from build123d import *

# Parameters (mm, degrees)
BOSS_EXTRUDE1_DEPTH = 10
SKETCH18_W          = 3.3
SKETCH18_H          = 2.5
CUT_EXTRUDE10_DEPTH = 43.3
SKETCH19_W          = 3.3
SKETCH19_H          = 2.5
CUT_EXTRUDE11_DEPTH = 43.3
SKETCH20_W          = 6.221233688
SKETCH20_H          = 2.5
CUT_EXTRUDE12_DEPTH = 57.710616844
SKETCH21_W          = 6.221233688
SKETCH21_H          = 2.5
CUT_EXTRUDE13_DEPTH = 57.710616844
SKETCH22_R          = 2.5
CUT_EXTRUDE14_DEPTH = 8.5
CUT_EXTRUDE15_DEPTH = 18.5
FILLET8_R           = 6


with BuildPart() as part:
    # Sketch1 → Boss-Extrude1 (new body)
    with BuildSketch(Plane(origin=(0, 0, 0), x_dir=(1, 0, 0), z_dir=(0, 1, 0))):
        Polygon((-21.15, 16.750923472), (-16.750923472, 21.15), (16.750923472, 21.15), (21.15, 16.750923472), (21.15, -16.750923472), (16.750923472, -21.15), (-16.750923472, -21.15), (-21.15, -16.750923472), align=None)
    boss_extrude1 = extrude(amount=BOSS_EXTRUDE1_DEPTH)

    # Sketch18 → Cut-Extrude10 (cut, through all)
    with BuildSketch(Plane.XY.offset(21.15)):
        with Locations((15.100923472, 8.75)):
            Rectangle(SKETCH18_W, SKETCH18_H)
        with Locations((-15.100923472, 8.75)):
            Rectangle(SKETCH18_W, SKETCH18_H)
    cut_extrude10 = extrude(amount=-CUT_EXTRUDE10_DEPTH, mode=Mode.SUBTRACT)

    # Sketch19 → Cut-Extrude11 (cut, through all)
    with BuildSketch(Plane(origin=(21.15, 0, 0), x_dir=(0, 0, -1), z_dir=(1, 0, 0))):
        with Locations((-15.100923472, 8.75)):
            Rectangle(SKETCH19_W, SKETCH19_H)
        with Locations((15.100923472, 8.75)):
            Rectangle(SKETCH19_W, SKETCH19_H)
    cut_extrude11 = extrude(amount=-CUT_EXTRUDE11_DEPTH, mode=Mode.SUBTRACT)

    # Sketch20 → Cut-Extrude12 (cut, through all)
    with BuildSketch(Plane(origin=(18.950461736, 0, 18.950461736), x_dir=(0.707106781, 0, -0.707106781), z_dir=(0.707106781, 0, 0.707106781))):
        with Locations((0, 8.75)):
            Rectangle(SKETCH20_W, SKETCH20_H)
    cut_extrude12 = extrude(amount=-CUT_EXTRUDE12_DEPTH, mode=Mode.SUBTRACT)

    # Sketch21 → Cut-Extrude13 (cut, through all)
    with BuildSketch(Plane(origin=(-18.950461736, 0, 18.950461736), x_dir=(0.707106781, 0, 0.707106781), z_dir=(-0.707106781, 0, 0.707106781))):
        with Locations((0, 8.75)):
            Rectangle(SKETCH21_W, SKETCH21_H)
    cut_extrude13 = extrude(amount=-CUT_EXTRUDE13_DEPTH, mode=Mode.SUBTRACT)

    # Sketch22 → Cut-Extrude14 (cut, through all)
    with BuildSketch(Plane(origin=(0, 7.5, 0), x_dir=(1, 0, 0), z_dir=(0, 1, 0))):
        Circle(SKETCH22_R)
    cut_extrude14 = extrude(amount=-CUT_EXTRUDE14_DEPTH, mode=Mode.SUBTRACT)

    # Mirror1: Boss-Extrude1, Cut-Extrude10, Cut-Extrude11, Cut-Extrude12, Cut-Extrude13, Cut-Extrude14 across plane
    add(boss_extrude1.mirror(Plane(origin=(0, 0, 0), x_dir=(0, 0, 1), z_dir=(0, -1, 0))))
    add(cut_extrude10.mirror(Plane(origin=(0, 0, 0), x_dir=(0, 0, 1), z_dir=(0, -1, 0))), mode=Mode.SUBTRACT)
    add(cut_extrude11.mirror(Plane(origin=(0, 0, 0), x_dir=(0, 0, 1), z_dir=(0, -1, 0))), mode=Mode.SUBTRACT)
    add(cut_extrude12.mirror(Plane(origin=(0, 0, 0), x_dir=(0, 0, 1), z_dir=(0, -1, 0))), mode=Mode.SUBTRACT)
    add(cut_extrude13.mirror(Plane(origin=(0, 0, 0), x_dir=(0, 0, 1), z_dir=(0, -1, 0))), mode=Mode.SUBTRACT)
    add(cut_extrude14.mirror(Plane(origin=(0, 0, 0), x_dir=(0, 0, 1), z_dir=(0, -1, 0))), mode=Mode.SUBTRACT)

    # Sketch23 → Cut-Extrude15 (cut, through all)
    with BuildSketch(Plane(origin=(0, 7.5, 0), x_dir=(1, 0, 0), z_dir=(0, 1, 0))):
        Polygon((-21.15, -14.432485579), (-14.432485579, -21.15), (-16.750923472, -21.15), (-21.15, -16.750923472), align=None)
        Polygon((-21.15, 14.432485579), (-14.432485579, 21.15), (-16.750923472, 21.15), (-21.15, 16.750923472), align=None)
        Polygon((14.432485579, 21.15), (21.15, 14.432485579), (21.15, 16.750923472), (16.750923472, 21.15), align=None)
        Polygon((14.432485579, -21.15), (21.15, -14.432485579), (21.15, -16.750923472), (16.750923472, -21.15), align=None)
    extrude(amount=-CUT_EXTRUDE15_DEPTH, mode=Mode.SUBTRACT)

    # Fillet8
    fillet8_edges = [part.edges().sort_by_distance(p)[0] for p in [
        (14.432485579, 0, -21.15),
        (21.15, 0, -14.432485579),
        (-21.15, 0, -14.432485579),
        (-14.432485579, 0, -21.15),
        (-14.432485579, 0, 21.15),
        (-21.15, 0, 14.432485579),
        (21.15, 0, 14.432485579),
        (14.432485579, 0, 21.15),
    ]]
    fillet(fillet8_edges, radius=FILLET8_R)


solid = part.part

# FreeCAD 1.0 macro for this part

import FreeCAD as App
import Part
import Sketcher
Q = App.Units.Quantity


def edges_at(feature, points):
    """Names of the edges that pass closest to the given points."""
    edges = feature.Shape.Edges
    near = lambda p: min(range(len(edges)), key=lambda i: edges[i].distToShape(Part.Vertex(*p))[0])
    return sorted({f"Edge{near(p) + 1}" for p in points})

doc = App.newDocument("Part")
body = doc.addObject("PartDesign::Body", "Body")

# Sketch on XZ plane
sketch1 = doc.addObject("Sketcher::SketchObject", "Sketch")
body.addObject(sketch1)
sketch1.AttachmentSupport = (doc.XZ_Plane, [""])
sketch1.MapMode = "FlatFace"
sketch1.addGeometry(Part.LineSegment(App.Vector(-16.750923, -21.15, 0), App.Vector(-21.15, -16.750923, 0)), False)
sketch1.addGeometry(Part.LineSegment(App.Vector(-21.15, -16.750923, 0), App.Vector(-21.15, 16.750923, 0)), False)
sketch1.addGeometry(Part.LineSegment(App.Vector(-21.15, 16.750923, 0), App.Vector(-16.750923, 21.15, 0)), False)
sketch1.addGeometry(Part.LineSegment(App.Vector(-16.750923, 21.15, 0), App.Vector(16.750923, 21.15, 0)), False)
sketch1.addGeometry(Part.LineSegment(App.Vector(16.750923, 21.15, 0), App.Vector(21.15, 16.750923, 0)), False)
sketch1.addGeometry(Part.LineSegment(App.Vector(21.15, 16.750923, 0), App.Vector(21.15, -16.750923, 0)), False)
sketch1.addGeometry(Part.LineSegment(App.Vector(21.15, -16.750923, 0), App.Vector(16.750923, -21.15, 0)), False)
sketch1.addGeometry(Part.LineSegment(App.Vector(16.750923, -21.15, 0), App.Vector(-16.750923, -21.15, 0)), False)
sketch1.addConstraint(Sketcher.Constraint("Coincident", 0, 2, 1, 1))
sketch1.addConstraint(Sketcher.Constraint("Coincident", 1, 2, 2, 1))
sketch1.addConstraint(Sketcher.Constraint("Coincident", 2, 2, 3, 1))
sketch1.addConstraint(Sketcher.Constraint("Coincident", 3, 2, 4, 1))
sketch1.addConstraint(Sketcher.Constraint("Coincident", 4, 2, 5, 1))
sketch1.addConstraint(Sketcher.Constraint("Coincident", 5, 2, 6, 1))
sketch1.addConstraint(Sketcher.Constraint("Coincident", 6, 2, 7, 1))
sketch1.addConstraint(Sketcher.Constraint("Coincident", 7, 2, 0, 1))
sketch1.addConstraint(Sketcher.Constraint("Vertical", 1))
sketch1.addConstraint(Sketcher.Constraint("Horizontal", 3))
sketch1.addConstraint(Sketcher.Constraint("Vertical", 5))
sketch1.addConstraint(Sketcher.Constraint("Horizontal", 7))
sketch1.addConstraint(Sketcher.Constraint("Symmetric", 0, 2, 4, 2, -1, 1))
sketch1.addConstraint(Sketcher.Constraint("Symmetric", 2, 2, 6, 2, -1, 1))
sketch1.addConstraint(Sketcher.Constraint("Perpendicular", 0, 2))
sketch1.addConstraint(Sketcher.Constraint("Perpendicular", 2, 4))
sketch1.addConstraint(Sketcher.Constraint("Perpendicular", 4, 6))
sketch1.addConstraint(Sketcher.Constraint("Horizontal", 1, 2, 4, 2))
sketch1.addConstraint(Sketcher.Constraint("Vertical", 3, 2, 6, 2))
sketch1.addConstraint(Sketcher.Constraint("Equal", 7, 1))
sketch1.addConstraint(Sketcher.Constraint("DistanceX", 1, 2, 4, 2, Q("42.3 mm")))
sketch1.addConstraint(Sketcher.Constraint("DistanceX", 3, 1, 3, 2, Q("33.501847 mm")))
pad1 = doc.addObject("PartDesign::Pad", "Pad")
body.addObject(pad1)
pad1.Profile = sketch1
pad1.Length = 10
pad1.Reversed = True

# Sketch on XY plane
sketch2 = doc.addObject("Sketcher::SketchObject", "Sketch001")
body.addObject(sketch2)
sketch2.AttachmentSupport = (doc.XY_Plane, [""])
sketch2.MapMode = "FlatFace"
sketch2.AttachmentOffset = App.Placement(App.Vector(0, 0, 21.15), App.Rotation())
sketch2.addGeometry(Part.LineSegment(App.Vector(13.450923, 10, 0), App.Vector(13.450923, 7.5, 0)), False)
sketch2.addGeometry(Part.LineSegment(App.Vector(13.450923, 7.5, 0), App.Vector(16.750923, 7.5, 0)), False)
sketch2.addGeometry(Part.LineSegment(App.Vector(16.750923, 7.5, 0), App.Vector(16.750923, 10, 0)), False)
sketch2.addGeometry(Part.LineSegment(App.Vector(16.750923, 10, 0), App.Vector(13.450923, 10, 0)), False)
sketch2.addGeometry(Part.LineSegment(App.Vector(-16.750923, 10, 0), App.Vector(-16.750923, 7.5, 0)), False)
sketch2.addGeometry(Part.LineSegment(App.Vector(-16.750923, 7.5, 0), App.Vector(-13.450923, 7.5, 0)), False)
sketch2.addGeometry(Part.LineSegment(App.Vector(-13.450923, 7.5, 0), App.Vector(-13.450923, 10, 0)), False)
sketch2.addGeometry(Part.LineSegment(App.Vector(-13.450923, 10, 0), App.Vector(-16.750923, 10, 0)), False)
sketch2.addConstraint(Sketcher.Constraint("Coincident", 0, 2, 1, 1))
sketch2.addConstraint(Sketcher.Constraint("Coincident", 1, 2, 2, 1))
sketch2.addConstraint(Sketcher.Constraint("Coincident", 2, 2, 3, 1))
sketch2.addConstraint(Sketcher.Constraint("Coincident", 3, 2, 0, 1))
sketch2.addConstraint(Sketcher.Constraint("Coincident", 4, 2, 5, 1))
sketch2.addConstraint(Sketcher.Constraint("Coincident", 5, 2, 6, 1))
sketch2.addConstraint(Sketcher.Constraint("Coincident", 6, 2, 7, 1))
sketch2.addConstraint(Sketcher.Constraint("Coincident", 7, 2, 4, 1))
sketch2.addConstraint(Sketcher.Constraint("Vertical", 0))
sketch2.addConstraint(Sketcher.Constraint("Horizontal", 1))
sketch2.addConstraint(Sketcher.Constraint("Vertical", 2))
sketch2.addConstraint(Sketcher.Constraint("Horizontal", 3))
sketch2.addConstraint(Sketcher.Constraint("Vertical", 4))
sketch2.addConstraint(Sketcher.Constraint("Horizontal", 5))
sketch2.addConstraint(Sketcher.Constraint("Vertical", 6))
sketch2.addConstraint(Sketcher.Constraint("Horizontal", 7))
sketch2.addConstraint(Sketcher.Constraint("Symmetric", 1, 2, 4, 2, -2))
sketch2.addConstraint(Sketcher.Constraint("Symmetric", 3, 2, 6, 2, -2))
sketch2.addConstraint(Sketcher.Constraint("DistanceX", 1, 1, 1, 2, Q("3.3 mm")))
sketch2.addConstraint(Sketcher.Constraint("DistanceY", 0, 2, 0, 1, Q("2.5 mm")))
sketch2.addConstraint(Sketcher.Constraint("DistanceY", -1, 1, 2, 2, Q("10 mm")))
sketch2.addConstraint(Sketcher.Constraint("DistanceX", -1, 1, 0, 2, Q("13.450923 mm")))
pocket1 = doc.addObject("PartDesign::Pocket", "Pocket")
body.addObject(pocket1)
pocket1.Profile = sketch2
pocket1.Type = "ThroughAll"

# Sketch on YZ plane
sketch3 = doc.addObject("Sketcher::SketchObject", "Sketch002")
body.addObject(sketch3)
sketch3.AttachmentSupport = (doc.YZ_Plane, [""])
sketch3.MapMode = "FlatFace"
sketch3.AttachmentOffset = App.Placement(App.Vector(0, 0, 21.15), App.Rotation())
sketch3.addGeometry(Part.LineSegment(App.Vector(10, 16.750923, 0), App.Vector(7.5, 16.750923, 0)), False)
sketch3.addGeometry(Part.LineSegment(App.Vector(7.5, 16.750923, 0), App.Vector(7.5, 13.450923, 0)), False)
sketch3.addGeometry(Part.LineSegment(App.Vector(7.5, 13.450923, 0), App.Vector(10, 13.450923, 0)), False)
sketch3.addGeometry(Part.LineSegment(App.Vector(10, 13.450923, 0), App.Vector(10, 16.750923, 0)), False)
sketch3.addGeometry(Part.LineSegment(App.Vector(10, -13.450923, 0), App.Vector(7.5, -13.450923, 0)), False)
sketch3.addGeometry(Part.LineSegment(App.Vector(7.5, -13.450923, 0), App.Vector(7.5, -16.750923, 0)), False)
sketch3.addGeometry(Part.LineSegment(App.Vector(7.5, -16.750923, 0), App.Vector(10, -16.750923, 0)), False)
sketch3.addGeometry(Part.LineSegment(App.Vector(10, -16.750923, 0), App.Vector(10, -13.450923, 0)), False)
sketch3.addConstraint(Sketcher.Constraint("Coincident", 0, 2, 1, 1))
sketch3.addConstraint(Sketcher.Constraint("Coincident", 1, 2, 2, 1))
sketch3.addConstraint(Sketcher.Constraint("Coincident", 2, 2, 3, 1))
sketch3.addConstraint(Sketcher.Constraint("Coincident", 3, 2, 0, 1))
sketch3.addConstraint(Sketcher.Constraint("Coincident", 4, 2, 5, 1))
sketch3.addConstraint(Sketcher.Constraint("Coincident", 5, 2, 6, 1))
sketch3.addConstraint(Sketcher.Constraint("Coincident", 6, 2, 7, 1))
sketch3.addConstraint(Sketcher.Constraint("Coincident", 7, 2, 4, 1))
sketch3.addConstraint(Sketcher.Constraint("Horizontal", 0))
sketch3.addConstraint(Sketcher.Constraint("Vertical", 1))
sketch3.addConstraint(Sketcher.Constraint("Horizontal", 2))
sketch3.addConstraint(Sketcher.Constraint("Vertical", 3))
sketch3.addConstraint(Sketcher.Constraint("Horizontal", 4))
sketch3.addConstraint(Sketcher.Constraint("Vertical", 5))
sketch3.addConstraint(Sketcher.Constraint("Horizontal", 6))
sketch3.addConstraint(Sketcher.Constraint("Vertical", 7))
sketch3.addConstraint(Sketcher.Constraint("Symmetric", 1, 2, 4, 2, -1))
sketch3.addConstraint(Sketcher.Constraint("Symmetric", 3, 2, 6, 2, -1))
sketch3.addConstraint(Sketcher.Constraint("DistanceX", 0, 2, 0, 1, Q("2.5 mm")))
sketch3.addConstraint(Sketcher.Constraint("DistanceY", 1, 2, 1, 1, Q("3.3 mm")))
sketch3.addConstraint(Sketcher.Constraint("DistanceX", -1, 1, 2, 2, Q("10 mm")))
sketch3.addConstraint(Sketcher.Constraint("DistanceY", -1, 1, 0, 2, Q("16.750923 mm")))
pocket2 = doc.addObject("PartDesign::Pocket", "Pocket001")
body.addObject(pocket2)
pocket2.Profile = sketch3
pocket2.Type = "ThroughAll"

# Sketch on an angled plane
sketch4 = doc.addObject("Sketcher::SketchObject", "Sketch003")
body.addObject(sketch4)
sketch4.Placement = App.Placement(App.Vector(18.950462, 0, 18.950462), App.Rotation(App.Vector(0.707106781, 0, -0.707106781), App.Vector(0, 0.999999999, 0), App.Vector(0.707106781, 0, 0.707106781), "ZXY"))
sketch4.addGeometry(Part.LineSegment(App.Vector(-3.110617, 10, 0), App.Vector(-3.110617, 7.5, 0)), False)
sketch4.addGeometry(Part.LineSegment(App.Vector(-3.110617, 7.5, 0), App.Vector(3.110617, 7.5, 0)), False)
sketch4.addGeometry(Part.LineSegment(App.Vector(3.110617, 7.5, 0), App.Vector(3.110617, 10, 0)), False)
sketch4.addGeometry(Part.LineSegment(App.Vector(3.110617, 10, 0), App.Vector(-3.110617, 10, 0)), False)
sketch4.addConstraint(Sketcher.Constraint("Coincident", 0, 2, 1, 1))
sketch4.addConstraint(Sketcher.Constraint("Coincident", 1, 2, 2, 1))
sketch4.addConstraint(Sketcher.Constraint("Coincident", 2, 2, 3, 1))
sketch4.addConstraint(Sketcher.Constraint("Coincident", 3, 2, 0, 1))
sketch4.addConstraint(Sketcher.Constraint("Vertical", 0))
sketch4.addConstraint(Sketcher.Constraint("Horizontal", 1))
sketch4.addConstraint(Sketcher.Constraint("Vertical", 2))
sketch4.addConstraint(Sketcher.Constraint("Horizontal", 3))
sketch4.addConstraint(Sketcher.Constraint("DistanceY", 0, 2, 0, 1, Q("2.5 mm")))
sketch4.addConstraint(Sketcher.Constraint("DistanceY", -1, 1, 2, 2, Q("10 mm")))
sketch4.addConstraint(Sketcher.Constraint("DistanceX", 1, 1, 1, 2, Q("6.221234 mm")))
sketch4.addConstraint(Sketcher.Constraint("DistanceX", 0, 2, -1, 1, Q("3.110617 mm")))
pocket3 = doc.addObject("PartDesign::Pocket", "Pocket002")
body.addObject(pocket3)
pocket3.Profile = sketch4
pocket3.Type = "ThroughAll"

# Sketch on an angled plane
sketch5 = doc.addObject("Sketcher::SketchObject", "Sketch004")
body.addObject(sketch5)
sketch5.Placement = App.Placement(App.Vector(-18.950462, 0, 18.950462), App.Rotation(App.Vector(0.707106781, 0, 0.707106781), App.Vector(0, 0.999999999, 0), App.Vector(-0.707106781, 0, 0.707106781), "ZXY"))
sketch5.addGeometry(Part.LineSegment(App.Vector(-3.110617, 10, 0), App.Vector(-3.110617, 7.5, 0)), False)
sketch5.addGeometry(Part.LineSegment(App.Vector(-3.110617, 7.5, 0), App.Vector(3.110617, 7.5, 0)), False)
sketch5.addGeometry(Part.LineSegment(App.Vector(3.110617, 7.5, 0), App.Vector(3.110617, 10, 0)), False)
sketch5.addGeometry(Part.LineSegment(App.Vector(3.110617, 10, 0), App.Vector(-3.110617, 10, 0)), False)
sketch5.addConstraint(Sketcher.Constraint("Coincident", 0, 2, 1, 1))
sketch5.addConstraint(Sketcher.Constraint("Coincident", 1, 2, 2, 1))
sketch5.addConstraint(Sketcher.Constraint("Coincident", 2, 2, 3, 1))
sketch5.addConstraint(Sketcher.Constraint("Coincident", 3, 2, 0, 1))
sketch5.addConstraint(Sketcher.Constraint("Vertical", 0))
sketch5.addConstraint(Sketcher.Constraint("Horizontal", 1))
sketch5.addConstraint(Sketcher.Constraint("Vertical", 2))
sketch5.addConstraint(Sketcher.Constraint("Horizontal", 3))
sketch5.addConstraint(Sketcher.Constraint("DistanceY", 0, 2, 0, 1, Q("2.5 mm")))
sketch5.addConstraint(Sketcher.Constraint("DistanceY", -1, 1, 2, 2, Q("10 mm")))
sketch5.addConstraint(Sketcher.Constraint("DistanceX", 1, 1, 1, 2, Q("6.221234 mm")))
sketch5.addConstraint(Sketcher.Constraint("DistanceX", 0, 2, -1, 1, Q("3.110617 mm")))
pocket4 = doc.addObject("PartDesign::Pocket", "Pocket003")
body.addObject(pocket4)
pocket4.Profile = sketch5
pocket4.Type = "ThroughAll"

# Sketch on XZ plane
sketch6 = doc.addObject("Sketcher::SketchObject", "Sketch005")
body.addObject(sketch6)
sketch6.AttachmentSupport = (doc.XZ_Plane, [""])
sketch6.MapMode = "FlatFace"
sketch6.AttachmentOffset = App.Placement(App.Vector(0, 0, -7.5), App.Rotation())
sketch6.addGeometry(Part.Circle(App.Vector(0, 0, 0), App.Vector(0, 0, 1), 2.5), False)
sketch6.addConstraint(Sketcher.Constraint("Coincident", 0, 3, -1, 1))
sketch6.addConstraint(Sketcher.Constraint("Diameter", 0, Q("5 mm")))
pocket5 = doc.addObject("PartDesign::Pocket", "Pocket004")
body.addObject(pocket5)
pocket5.Profile = sketch6
pocket5.Type = "ThroughAll"
pocket5.Reversed = True
doc.recompute()

mirrored = doc.addObject("PartDesign::Mirrored", "Mirrored")
body.addObject(mirrored)
mirrored.Originals = [pad1, pocket1, pocket2, pocket3, pocket4, pocket5]
mirrored.MirrorPlane = (doc.XZ_Plane, [""])
body.Tip = mirrored

# Sketch on XZ plane
sketch7 = doc.addObject("Sketcher::SketchObject", "Sketch006")
body.addObject(sketch7)
sketch7.AttachmentSupport = (doc.XZ_Plane, [""])
sketch7.MapMode = "FlatFace"
sketch7.AttachmentOffset = App.Placement(App.Vector(0, 0, -7.5), App.Rotation())
sketch7.addGeometry(Part.LineSegment(App.Vector(-14.432486, 21.15, 0), App.Vector(-21.15, 14.432486, 0)), False)
sketch7.addGeometry(Part.LineSegment(App.Vector(-21.15, 14.432486, 0), App.Vector(-21.15, 16.750923, 0)), False)
sketch7.addGeometry(Part.LineSegment(App.Vector(-21.15, 16.750923, 0), App.Vector(-16.750923, 21.15, 0)), False)
sketch7.addGeometry(Part.LineSegment(App.Vector(-16.750923, 21.15, 0), App.Vector(-14.432486, 21.15, 0)), False)
sketch7.addGeometry(Part.LineSegment(App.Vector(-21.15, -14.432486, 0), App.Vector(-14.432486, -21.15, 0)), False)
sketch7.addGeometry(Part.LineSegment(App.Vector(-14.432486, -21.15, 0), App.Vector(-16.750923, -21.15, 0)), False)
sketch7.addGeometry(Part.LineSegment(App.Vector(-16.750923, -21.15, 0), App.Vector(-21.15, -16.750923, 0)), False)
sketch7.addGeometry(Part.LineSegment(App.Vector(-21.15, -16.750923, 0), App.Vector(-21.15, -14.432486, 0)), False)
sketch7.addGeometry(Part.LineSegment(App.Vector(14.432486, -21.15, 0), App.Vector(21.15, -14.432486, 0)), False)
sketch7.addGeometry(Part.LineSegment(App.Vector(21.15, -14.432486, 0), App.Vector(21.15, -16.750923, 0)), False)
sketch7.addGeometry(Part.LineSegment(App.Vector(21.15, -16.750923, 0), App.Vector(16.750923, -21.15, 0)), False)
sketch7.addGeometry(Part.LineSegment(App.Vector(16.750923, -21.15, 0), App.Vector(14.432486, -21.15, 0)), False)
sketch7.addGeometry(Part.LineSegment(App.Vector(21.15, 14.432486, 0), App.Vector(14.432486, 21.15, 0)), False)
sketch7.addGeometry(Part.LineSegment(App.Vector(14.432486, 21.15, 0), App.Vector(16.750923, 21.15, 0)), False)
sketch7.addGeometry(Part.LineSegment(App.Vector(16.750923, 21.15, 0), App.Vector(21.15, 16.750923, 0)), False)
sketch7.addGeometry(Part.LineSegment(App.Vector(21.15, 16.750923, 0), App.Vector(21.15, 14.432486, 0)), False)
sketch7.addConstraint(Sketcher.Constraint("Coincident", 0, 2, 1, 1))
sketch7.addConstraint(Sketcher.Constraint("Coincident", 1, 2, 2, 1))
sketch7.addConstraint(Sketcher.Constraint("Coincident", 2, 2, 3, 1))
sketch7.addConstraint(Sketcher.Constraint("Coincident", 3, 2, 0, 1))
sketch7.addConstraint(Sketcher.Constraint("Coincident", 4, 2, 5, 1))
sketch7.addConstraint(Sketcher.Constraint("Coincident", 5, 2, 6, 1))
sketch7.addConstraint(Sketcher.Constraint("Coincident", 6, 2, 7, 1))
sketch7.addConstraint(Sketcher.Constraint("Coincident", 7, 2, 4, 1))
sketch7.addConstraint(Sketcher.Constraint("Coincident", 8, 2, 9, 1))
sketch7.addConstraint(Sketcher.Constraint("Coincident", 9, 2, 10, 1))
sketch7.addConstraint(Sketcher.Constraint("Coincident", 10, 2, 11, 1))
sketch7.addConstraint(Sketcher.Constraint("Coincident", 11, 2, 8, 1))
sketch7.addConstraint(Sketcher.Constraint("Coincident", 12, 2, 13, 1))
sketch7.addConstraint(Sketcher.Constraint("Coincident", 13, 2, 14, 1))
sketch7.addConstraint(Sketcher.Constraint("Coincident", 14, 2, 15, 1))
sketch7.addConstraint(Sketcher.Constraint("Coincident", 15, 2, 12, 1))
sketch7.addConstraint(Sketcher.Constraint("Vertical", 1))
sketch7.addConstraint(Sketcher.Constraint("Horizontal", 3))
sketch7.addConstraint(Sketcher.Constraint("Horizontal", 5))
sketch7.addConstraint(Sketcher.Constraint("Vertical", 7))
sketch7.addConstraint(Sketcher.Constraint("Vertical", 9))
sketch7.addConstraint(Sketcher.Constraint("Horizontal", 11))
sketch7.addConstraint(Sketcher.Constraint("Horizontal", 13))
sketch7.addConstraint(Sketcher.Constraint("Vertical", 15))
sketch7.addConstraint(Sketcher.Constraint("Symmetric", 0, 2, 8, 2, -1, 1))
sketch7.addConstraint(Sketcher.Constraint("Symmetric", 2, 2, 10, 2, -1, 1))
sketch7.addConstraint(Sketcher.Constraint("Symmetric", 4, 2, 12, 2, -1, 1))
sketch7.addConstraint(Sketcher.Constraint("Symmetric", 6, 2, 14, 2, -1, 1))
sketch7.addConstraint(Sketcher.Constraint("Symmetric", 7, 2, 8, 2, -2))
sketch7.addConstraint(Sketcher.Constraint("Symmetric", 5, 2, 10, 2, -2))
sketch7.addConstraint(Sketcher.Constraint("Parallel", 0, 2))
sketch7.addConstraint(Sketcher.Constraint("Perpendicular", 2, 4))
sketch7.addConstraint(Sketcher.Constraint("Parallel", 4, 6))
sketch7.addConstraint(Sketcher.Constraint("Perpendicular", 6, 8))
sketch7.addConstraint(Sketcher.Constraint("Parallel", 8, 10))
sketch7.addConstraint(Sketcher.Constraint("Perpendicular", 10, 12))
sketch7.addConstraint(Sketcher.Constraint("Parallel", 12, 14))
sketch7.addConstraint(Sketcher.Constraint("Horizontal", 6, 2, 9, 2))
sketch7.addConstraint(Sketcher.Constraint("Distance", 0, Q("9.5 mm")))
sketch7.addConstraint(Sketcher.Constraint("DistanceY", 4, 2, 3, 2, Q("42.3 mm")))
sketch7.addConstraint(Sketcher.Constraint("DistanceX", 7, 2, 8, 2, Q("42.3 mm")))
sketch7.addConstraint(Sketcher.Constraint("DistanceX", 3, 1, 3, 2, Q("2.318438 mm")))
pocket6 = doc.addObject("PartDesign::Pocket", "Pocket005")
body.addObject(pocket6)
pocket6.Profile = sketch7
pocket6.Type = "ThroughAll"
pocket6.Reversed = True
doc.recompute()

fillet = doc.addObject("PartDesign::Fillet", "Fillet")
body.addObject(fillet)
fillet.Base = (pocket6, edges_at(pocket6, [
    (14.432, 0, -21.15),
    (21.15, 0, -14.432),
    (-21.15, 0, -14.432),
    (-14.432, 0, -21.15),
    (-14.432, 0, 21.15),
    (-21.15, 0, 14.432),
    (21.15, 0, 14.432),
    (14.432, 0, 21.15),
]))
fillet.Radius = 6

doc.recompute()
